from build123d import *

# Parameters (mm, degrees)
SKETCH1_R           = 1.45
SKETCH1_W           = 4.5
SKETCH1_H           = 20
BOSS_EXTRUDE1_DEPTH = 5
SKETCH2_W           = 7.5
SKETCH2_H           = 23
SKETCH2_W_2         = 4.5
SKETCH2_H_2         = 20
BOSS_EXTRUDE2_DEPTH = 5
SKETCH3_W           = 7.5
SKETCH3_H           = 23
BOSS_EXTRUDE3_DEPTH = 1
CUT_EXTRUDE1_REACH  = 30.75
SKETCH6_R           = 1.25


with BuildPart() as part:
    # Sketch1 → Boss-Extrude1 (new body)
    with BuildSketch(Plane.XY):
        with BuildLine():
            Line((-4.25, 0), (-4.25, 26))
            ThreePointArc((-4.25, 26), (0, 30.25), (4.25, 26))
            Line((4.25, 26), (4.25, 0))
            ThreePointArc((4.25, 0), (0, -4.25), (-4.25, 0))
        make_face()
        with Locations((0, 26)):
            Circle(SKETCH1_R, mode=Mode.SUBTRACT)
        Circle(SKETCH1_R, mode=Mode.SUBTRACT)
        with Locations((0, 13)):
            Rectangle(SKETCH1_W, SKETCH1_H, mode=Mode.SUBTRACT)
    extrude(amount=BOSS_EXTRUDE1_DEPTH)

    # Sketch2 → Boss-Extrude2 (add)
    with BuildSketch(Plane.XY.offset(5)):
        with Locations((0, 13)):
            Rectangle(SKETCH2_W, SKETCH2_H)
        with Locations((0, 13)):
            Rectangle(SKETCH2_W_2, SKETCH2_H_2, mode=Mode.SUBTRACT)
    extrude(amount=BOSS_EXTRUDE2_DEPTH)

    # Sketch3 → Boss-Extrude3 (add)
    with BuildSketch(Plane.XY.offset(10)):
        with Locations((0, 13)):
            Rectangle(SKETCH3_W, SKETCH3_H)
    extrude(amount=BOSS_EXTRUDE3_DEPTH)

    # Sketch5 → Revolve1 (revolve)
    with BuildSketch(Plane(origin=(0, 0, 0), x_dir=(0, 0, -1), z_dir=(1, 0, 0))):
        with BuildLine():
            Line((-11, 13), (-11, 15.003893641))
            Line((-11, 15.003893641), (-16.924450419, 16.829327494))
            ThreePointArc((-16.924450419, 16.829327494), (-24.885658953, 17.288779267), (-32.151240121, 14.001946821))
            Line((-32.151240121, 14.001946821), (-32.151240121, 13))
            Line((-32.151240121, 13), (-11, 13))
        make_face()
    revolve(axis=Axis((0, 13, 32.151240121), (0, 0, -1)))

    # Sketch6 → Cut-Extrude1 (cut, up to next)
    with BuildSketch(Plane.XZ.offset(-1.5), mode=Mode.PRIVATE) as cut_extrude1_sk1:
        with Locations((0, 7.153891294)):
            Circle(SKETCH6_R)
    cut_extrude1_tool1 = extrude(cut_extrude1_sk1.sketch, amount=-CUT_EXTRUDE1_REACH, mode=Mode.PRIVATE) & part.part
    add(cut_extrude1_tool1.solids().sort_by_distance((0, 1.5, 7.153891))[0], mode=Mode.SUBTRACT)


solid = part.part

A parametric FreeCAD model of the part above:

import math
import FreeCAD as App
import Part
import Sketcher

V = App.Vector


def add_polygon(sketch, points):
    """Adds a closed chain of lines whose ends are joined by coincident constraints."""
    first, n = sketch.GeometryCount, len(points)
    for a, b in zip(points, points[1:] + points[:1]):
        sketch.addGeometry(Part.LineSegment(App.Vector(*a, 0), App.Vector(*b, 0)), False)
    for i in range(n):
        sketch.addConstraint(Sketcher.Constraint("Coincident", first + i, 2, first + (i + 1) % n, 1))

doc = App.newDocument("Part")
body = doc.addObject("PartDesign::Body", "Body")

# Sketch on XY plane
sketch1 = body.newObject("Sketcher::SketchObject", "Sketch")
sketch1.AttachmentSupport = (doc.getObject("XY_Plane"), [""])
sketch1.MapMode = "FlatFace"
sketch1.addGeometry(Part.LineSegment(V(-4.2, 26, 0), V(-4.2, 0, 0)), False)  # 0
sketch1.addGeometry(Part.ArcOfCircle(Part.Circle(V(0, 0, 0), V(0, 0, 1), 4.2), math.radians(180), math.radians(360)), False)  # 1
sketch1.addGeometry(Part.LineSegment(V(4.2, 0, 0), V(4.2, 26, 0)), False)  # 2
sketch1.addGeometry(Part.ArcOfCircle(Part.Circle(V(0, 26, 0), V(0, 0, 1), 4.2), math.radians(0), math.radians(180)), False)  # 3
sketch1.addGeometry(Part.Circle(V(0, 0, 0), V(0, 0, 1), 1.4), False)  # 4
add_polygon(sketch1, [(-2.2, 3), (-2.2, 23), (2.2, 23), (2.2, 3)])  # lines 5-8
sketch1.addGeometry(Part.Circle(V(0, 26, 0), V(0, 0, 1), 1.4), False)  # 9
sketch1.addConstraint(Sketcher.Constraint("Tangent", 0, 2, 1, 1))
sketch1.addConstraint(Sketcher.Constraint("Tangent", 1, 2, 2, 1))
sketch1.addConstraint(Sketcher.Constraint("Tangent", 2, 2, 3, 1))
sketch1.addConstraint(Sketcher.Constraint("Tangent", 3, 2, 0, 1))
sketch1.addConstraint(Sketcher.Constraint("Vertical", 0))
sketch1.addConstraint(Sketcher.Constraint("Vertical", 2))
sketch1.addConstraint(Sketcher.Constraint("Vertical", 5))
sketch1.addConstraint(Sketcher.Constraint("Horizontal", 6))
sketch1.addConstraint(Sketcher.Constraint("Vertical", 7))
sketch1.addConstraint(Sketcher.Constraint("Horizontal", 8))
sketch1.addConstraint(Sketcher.Constraint("Coincident", 1, 3, -1, 1))
sketch1.addConstraint(Sketcher.Constraint("Coincident", 4, 3, -1, 1))
sketch1.addConstraint(Sketcher.Constraint("Coincident", 9, 3, 3, 3))
sketch1.addConstraint(Sketcher.Constraint("Equal", 4, 9))
sketch1.addConstraint(Sketcher.Constraint("Diameter", 4, 2.9))
sketch1.addConstraint(Sketcher.Constraint("DistanceY", 0, 2, 0, 1, 26.0))
sketch1.addConstraint(Sketcher.Constraint("DistanceY", 5, 1, 5, 2, 20.0))
sketch1.addConstraint(Sketcher.Constraint("Radius", 1, 4.25))
sketch1.addConstraint(Sketcher.Constraint("DistanceX", 6, 1, 6, 2, 4.5))
sketch1.addConstraint(Sketcher.Constraint("DistanceY", -1, 1, 5, 2, 23.0))
sketch1.addConstraint(Sketcher.Constraint("DistanceX", 3, 2, 5, 2, 2.0))
pad1 = body.newObject("PartDesign::Pad", "Pad")
pad1.Profile = sketch1
pad1.Length = 5

# Sketch on XY plane
sketch2 = body.newObject("Sketcher::SketchObject", "Sketch001")
sketch2.AttachmentSupport = (doc.getObject("XY_Plane"), [""])
sketch2.MapMode = "FlatFace"
sketch2.AttachmentOffset = App.Placement(V(0, 0, 5), App.Rotation())
add_polygon(sketch2, [(-3.8, 24.5), (-3.8, 1.5), (3.8, 1.5), (3.8, 24.5)])  # lines 0-3
add_polygon(sketch2, [(2.2, 3), (-2.2, 3), (-2.2, 23), (2.2, 23)])  # lines 4-7
sketch2.addConstraint(Sketcher.Constraint("Vertical", 0))
sketch2.addConstraint(Sketcher.Constraint("Horizontal", 1))
sketch2.addConstraint(Sketcher.Constraint("Vertical", 2))
sketch2.addConstraint(Sketcher.Constraint("Horizontal", 3))
sketch2.addConstraint(Sketcher.Constraint("Horizontal", 4))
sketch2.addConstraint(Sketcher.Constraint("Vertical", 5))
sketch2.addConstraint(Sketcher.Constraint("Horizontal", 6))
sketch2.addConstraint(Sketcher.Constraint("Vertical", 7))
sketch2.addConstraint(Sketcher.Constraint("DistanceY", 0, 2, 0, 1, 23.0))
sketch2.addConstraint(Sketcher.Constraint("DistanceY", 5, 1, 5, 2, 20.0))
sketch2.addConstraint(Sketcher.Constraint("DistanceX", 1, 1, 1, 2, 7.5))
sketch2.addConstraint(Sketcher.Constraint("DistanceX", 4, 2, 4, 1, 4.5))
sketch2.addConstraint(Sketcher.Constraint("DistanceY", -1, 1, 4, 2, 3.0))
sketch2.addConstraint(Sketcher.Constraint("DistanceX", 4, 2, 1, 2, 6.0))
sketch2.addConstraint(Sketcher.Constraint("DistanceY", -1, 1, 0, 2, 1.5))
sketch2.addConstraint(Sketcher.Constraint("DistanceX", 0, 2, -1, 1, 3.75))
pad2 = body.newObject("PartDesign::Pad", "Pad001")
pad2.Profile = sketch2
pad2.Length = 5

# Sketch on XY plane
sketch3 = body.newObject("Sketcher::SketchObject", "Sketch002")
sketch3.AttachmentSupport = (doc.getObject("XY_Plane"), [""])
sketch3.MapMode = "FlatFace"
sketch3.AttachmentOffset = App.Placement(V(0, 0, 10), App.Rotation())
add_polygon(sketch3, [(-4, 24), (-4, 2), (4, 2), (4, 24)])  # lines 0-3
sketch3.addConstraint(Sketcher.Constraint("Vertical", 0))
sketch3.addConstraint(Sketcher.Constraint("Horizontal", 1))
sketch3.addConstraint(Sketcher.Constraint("Vertical", 2))
sketch3.addConstraint(Sketcher.Constraint("Horizontal", 3))
sketch3.addConstraint(Sketcher.Constraint("DistanceY", 0, 2, 0, 1, 23.0))
sketch3.addConstraint(Sketcher.Constraint("DistanceX", 1, 1, 1, 2, 7.5))
sketch3.addConstraint(Sketcher.Constraint("DistanceY", -1, 1, 0, 2, 1.5))
sketch3.addConstraint(Sketcher.Constraint("DistanceX", 0, 2, -1, 1, 3.75))
pad3 = body.newObject("PartDesign::Pad", "Pad002")
pad3.Profile = sketch3
pad3.Length = 1

# Sketch on YZ plane
sketch4 = body.newObject("Sketcher::SketchObject", "Sketch003")
sketch4.AttachmentSupport = (doc.getObject("YZ_Plane"), [""])
sketch4.MapMode = "FlatFace"
sketch4.addGeometry(Part.LineSegment(V(13, 11, 0), V(15, 11, 0)), False)
sketch4.addGeometry(Part.LineSegment(V(15, 11, 0), V(16.8, 16.9, 0)), False)
sketch4.addGeometry(Part.ArcOfCircle(Part.Circle(V(0.9, 21.8, 0), V(0, 0, 1), 16.7), math.radians(-17), math.radians(38)), False)
sketch4.addGeometry(Part.LineSegment(V(14, 32.2, 0), V(13, 32.2, 0)), False)
sketch4.addGeometry(Part.LineSegment(V(13, 32.2, 0), V(13, 11, 0)), False)
sketch4.addGeometry(Part.LineSegment(V(13, 32.2, 0), V(13, 11, 0)), True)  # axis
sketch4.addConstraint(Sketcher.Constraint("Coincident", 0, 2, 1, 1))
sketch4.addConstraint(Sketcher.Constraint("Tangent", 1, 2, 2, 1))
sketch4.addConstraint(Sketcher.Constraint("Coincident", 2, 2, 3, 1))
sketch4.addConstraint(Sketcher.Constraint("Coincident", 3, 2, 4, 1))
sketch4.addConstraint(Sketcher.Constraint("Coincident", 4, 2, 0, 1))
sketch4.addConstraint(Sketcher.Constraint("Horizontal", 0))
sketch4.addConstraint(Sketcher.Constraint("Horizontal", 3))
sketch4.addConstraint(Sketcher.Constraint("Vertical", 4))
sketch4.addConstraint(Sketcher.Constraint("Vertical", 5))
sketch4.addConstraint(Sketcher.Constraint("Coincident", 5, 1, 3, 2))
sketch4.addConstraint(Sketcher.Constraint("Horizontal", 0, 2, 5, 2))
sketch4.addConstraint(Sketcher.Constraint("DistanceY", -1, 1, 0, 2, 11.0))
sketch4.addConstraint(Sketcher.Constraint("DistanceX", -1, 1, 3, 2, 13.0))
sketch4.addConstraint(Sketcher.Constraint("Radius", 2, 16.689393))
sketch4.addConstraint(Sketcher.Constraint("Distance", 1, 6.1993))
sketch4.addConstraint(Sketcher.Constraint("DistanceY", 4, 2, 4, 1, 21.15124))
sketch4.addConstraint(Sketcher.Constraint("DistanceX", 0, 1, 0, 2, 2.003894))
sketch4.addConstraint(Sketcher.Constraint("DistanceX", 3, 2, 3, 1, 1.001947))
revolution = body.newObject("PartDesign::Revolution", "Revolution")
revolution.Profile = sketch4
revolution.ReferenceAxis = (sketch4, ["Axis0"])
revolution.Angle = 360

# Sketch on XZ plane
sketch5 = body.newObject("Sketcher::SketchObject", "Sketch004")
sketch5.AttachmentSupport = (doc.getObject("XZ_Plane"), [""])
sketch5.MapMode = "FlatFace"
sketch5.AttachmentOffset = App.Placement(V(0, 0, -1.5), App.Rotation())
sketch5.addGeometry(Part.Circle(V(0, 7.2, 0), V(0, 0, 1), 1.2), False)
sketch5.addConstraint(Sketcher.Constraint("PointOnObject", 0, 3, -2))
sketch5.addConstraint(Sketcher.Constraint("Diameter", 0, 2.5))
sketch5.addConstraint(Sketcher.Constraint("DistanceY", -1, 1, 0, 3, 7.153891))
pocket1 = body.newObject("PartDesign::Pocket", "Pocket")
pocket1.Profile = sketch5
pocket1.Type = "UpToFirst"

doc.recompute()
